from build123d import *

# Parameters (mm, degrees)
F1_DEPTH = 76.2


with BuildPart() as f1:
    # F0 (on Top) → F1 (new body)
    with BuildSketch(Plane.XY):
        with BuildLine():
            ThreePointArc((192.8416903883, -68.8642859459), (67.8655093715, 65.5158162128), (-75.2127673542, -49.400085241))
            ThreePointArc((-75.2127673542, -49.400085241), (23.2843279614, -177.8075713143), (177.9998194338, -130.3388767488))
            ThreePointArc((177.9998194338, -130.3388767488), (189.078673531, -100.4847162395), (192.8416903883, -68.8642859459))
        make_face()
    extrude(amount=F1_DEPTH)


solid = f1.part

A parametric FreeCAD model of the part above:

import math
import FreeCAD as App
import Part
import Sketcher

V = App.Vector
Q = App.Units.Quantity

doc = App.newDocument("Part")
body = doc.addObject("PartDesign::Body", "Body")

# Sketch on XY plane
sketch1 = doc.addObject("Sketcher::SketchObject", "Sketch")
body.addObject(sketch1)
sketch1.AttachmentSupport = (doc.XY_Plane, [""])
sketch1.MapMode = "FlatFace"
sketch1.addGeometry([
    Part.ArcOfCircle(Part.Circle(V(58, -69, 0), V(0, 0, 1), 135), math.radians(0), math.radians(172)),
    Part.ArcOfCircle(Part.Circle(V(66, -43, 0), V(0, 0, 1), 142), math.radians(-177), math.radians(-38)),
    Part.ArcOfCircle(Part.Circle(V(58, -69, 0), V(0, 0, 1), 135), math.radians(-27), math.radians(0)),
], False)
sketch1.addConstraint([
    Sketcher.Constraint("Coincident", 0, 2, 1, 1),
    Sketcher.Constraint("Coincident", 1, 2, 2, 1),
    Sketcher.Constraint("Tangent", 2, 2, 0, 1),
    Sketcher.Constraint("Equal", 0, 2),
    Sketcher.Constraint("Horizontal", 0, 3, 2, 2),
    Sketcher.Constraint("Radius", 0, Q("134.733905 mm")),
    Sketcher.Constraint("Radius", 1, Q("141.842356 mm")),
    Sketcher.Constraint("DistanceY", 2, 3, 0, 2, Q("19.464201 mm")),
    Sketcher.Constraint("DistanceX", -1, 1, 1, 3, Q("66.471241 mm")),
    Sketcher.Constraint("DistanceX", -1, 1, 1, 2, Q("177.999819 mm")),
    Sketcher.Constraint("DistanceY", 0, 3, -1, 1, Q("68.864286 mm")),
])
pad1 = doc.addObject("PartDesign::Pad", "Pad")
body.addObject(pad1)
pad1.Profile = sketch1
pad1.Length = Q("3 in")

doc.recompute()
